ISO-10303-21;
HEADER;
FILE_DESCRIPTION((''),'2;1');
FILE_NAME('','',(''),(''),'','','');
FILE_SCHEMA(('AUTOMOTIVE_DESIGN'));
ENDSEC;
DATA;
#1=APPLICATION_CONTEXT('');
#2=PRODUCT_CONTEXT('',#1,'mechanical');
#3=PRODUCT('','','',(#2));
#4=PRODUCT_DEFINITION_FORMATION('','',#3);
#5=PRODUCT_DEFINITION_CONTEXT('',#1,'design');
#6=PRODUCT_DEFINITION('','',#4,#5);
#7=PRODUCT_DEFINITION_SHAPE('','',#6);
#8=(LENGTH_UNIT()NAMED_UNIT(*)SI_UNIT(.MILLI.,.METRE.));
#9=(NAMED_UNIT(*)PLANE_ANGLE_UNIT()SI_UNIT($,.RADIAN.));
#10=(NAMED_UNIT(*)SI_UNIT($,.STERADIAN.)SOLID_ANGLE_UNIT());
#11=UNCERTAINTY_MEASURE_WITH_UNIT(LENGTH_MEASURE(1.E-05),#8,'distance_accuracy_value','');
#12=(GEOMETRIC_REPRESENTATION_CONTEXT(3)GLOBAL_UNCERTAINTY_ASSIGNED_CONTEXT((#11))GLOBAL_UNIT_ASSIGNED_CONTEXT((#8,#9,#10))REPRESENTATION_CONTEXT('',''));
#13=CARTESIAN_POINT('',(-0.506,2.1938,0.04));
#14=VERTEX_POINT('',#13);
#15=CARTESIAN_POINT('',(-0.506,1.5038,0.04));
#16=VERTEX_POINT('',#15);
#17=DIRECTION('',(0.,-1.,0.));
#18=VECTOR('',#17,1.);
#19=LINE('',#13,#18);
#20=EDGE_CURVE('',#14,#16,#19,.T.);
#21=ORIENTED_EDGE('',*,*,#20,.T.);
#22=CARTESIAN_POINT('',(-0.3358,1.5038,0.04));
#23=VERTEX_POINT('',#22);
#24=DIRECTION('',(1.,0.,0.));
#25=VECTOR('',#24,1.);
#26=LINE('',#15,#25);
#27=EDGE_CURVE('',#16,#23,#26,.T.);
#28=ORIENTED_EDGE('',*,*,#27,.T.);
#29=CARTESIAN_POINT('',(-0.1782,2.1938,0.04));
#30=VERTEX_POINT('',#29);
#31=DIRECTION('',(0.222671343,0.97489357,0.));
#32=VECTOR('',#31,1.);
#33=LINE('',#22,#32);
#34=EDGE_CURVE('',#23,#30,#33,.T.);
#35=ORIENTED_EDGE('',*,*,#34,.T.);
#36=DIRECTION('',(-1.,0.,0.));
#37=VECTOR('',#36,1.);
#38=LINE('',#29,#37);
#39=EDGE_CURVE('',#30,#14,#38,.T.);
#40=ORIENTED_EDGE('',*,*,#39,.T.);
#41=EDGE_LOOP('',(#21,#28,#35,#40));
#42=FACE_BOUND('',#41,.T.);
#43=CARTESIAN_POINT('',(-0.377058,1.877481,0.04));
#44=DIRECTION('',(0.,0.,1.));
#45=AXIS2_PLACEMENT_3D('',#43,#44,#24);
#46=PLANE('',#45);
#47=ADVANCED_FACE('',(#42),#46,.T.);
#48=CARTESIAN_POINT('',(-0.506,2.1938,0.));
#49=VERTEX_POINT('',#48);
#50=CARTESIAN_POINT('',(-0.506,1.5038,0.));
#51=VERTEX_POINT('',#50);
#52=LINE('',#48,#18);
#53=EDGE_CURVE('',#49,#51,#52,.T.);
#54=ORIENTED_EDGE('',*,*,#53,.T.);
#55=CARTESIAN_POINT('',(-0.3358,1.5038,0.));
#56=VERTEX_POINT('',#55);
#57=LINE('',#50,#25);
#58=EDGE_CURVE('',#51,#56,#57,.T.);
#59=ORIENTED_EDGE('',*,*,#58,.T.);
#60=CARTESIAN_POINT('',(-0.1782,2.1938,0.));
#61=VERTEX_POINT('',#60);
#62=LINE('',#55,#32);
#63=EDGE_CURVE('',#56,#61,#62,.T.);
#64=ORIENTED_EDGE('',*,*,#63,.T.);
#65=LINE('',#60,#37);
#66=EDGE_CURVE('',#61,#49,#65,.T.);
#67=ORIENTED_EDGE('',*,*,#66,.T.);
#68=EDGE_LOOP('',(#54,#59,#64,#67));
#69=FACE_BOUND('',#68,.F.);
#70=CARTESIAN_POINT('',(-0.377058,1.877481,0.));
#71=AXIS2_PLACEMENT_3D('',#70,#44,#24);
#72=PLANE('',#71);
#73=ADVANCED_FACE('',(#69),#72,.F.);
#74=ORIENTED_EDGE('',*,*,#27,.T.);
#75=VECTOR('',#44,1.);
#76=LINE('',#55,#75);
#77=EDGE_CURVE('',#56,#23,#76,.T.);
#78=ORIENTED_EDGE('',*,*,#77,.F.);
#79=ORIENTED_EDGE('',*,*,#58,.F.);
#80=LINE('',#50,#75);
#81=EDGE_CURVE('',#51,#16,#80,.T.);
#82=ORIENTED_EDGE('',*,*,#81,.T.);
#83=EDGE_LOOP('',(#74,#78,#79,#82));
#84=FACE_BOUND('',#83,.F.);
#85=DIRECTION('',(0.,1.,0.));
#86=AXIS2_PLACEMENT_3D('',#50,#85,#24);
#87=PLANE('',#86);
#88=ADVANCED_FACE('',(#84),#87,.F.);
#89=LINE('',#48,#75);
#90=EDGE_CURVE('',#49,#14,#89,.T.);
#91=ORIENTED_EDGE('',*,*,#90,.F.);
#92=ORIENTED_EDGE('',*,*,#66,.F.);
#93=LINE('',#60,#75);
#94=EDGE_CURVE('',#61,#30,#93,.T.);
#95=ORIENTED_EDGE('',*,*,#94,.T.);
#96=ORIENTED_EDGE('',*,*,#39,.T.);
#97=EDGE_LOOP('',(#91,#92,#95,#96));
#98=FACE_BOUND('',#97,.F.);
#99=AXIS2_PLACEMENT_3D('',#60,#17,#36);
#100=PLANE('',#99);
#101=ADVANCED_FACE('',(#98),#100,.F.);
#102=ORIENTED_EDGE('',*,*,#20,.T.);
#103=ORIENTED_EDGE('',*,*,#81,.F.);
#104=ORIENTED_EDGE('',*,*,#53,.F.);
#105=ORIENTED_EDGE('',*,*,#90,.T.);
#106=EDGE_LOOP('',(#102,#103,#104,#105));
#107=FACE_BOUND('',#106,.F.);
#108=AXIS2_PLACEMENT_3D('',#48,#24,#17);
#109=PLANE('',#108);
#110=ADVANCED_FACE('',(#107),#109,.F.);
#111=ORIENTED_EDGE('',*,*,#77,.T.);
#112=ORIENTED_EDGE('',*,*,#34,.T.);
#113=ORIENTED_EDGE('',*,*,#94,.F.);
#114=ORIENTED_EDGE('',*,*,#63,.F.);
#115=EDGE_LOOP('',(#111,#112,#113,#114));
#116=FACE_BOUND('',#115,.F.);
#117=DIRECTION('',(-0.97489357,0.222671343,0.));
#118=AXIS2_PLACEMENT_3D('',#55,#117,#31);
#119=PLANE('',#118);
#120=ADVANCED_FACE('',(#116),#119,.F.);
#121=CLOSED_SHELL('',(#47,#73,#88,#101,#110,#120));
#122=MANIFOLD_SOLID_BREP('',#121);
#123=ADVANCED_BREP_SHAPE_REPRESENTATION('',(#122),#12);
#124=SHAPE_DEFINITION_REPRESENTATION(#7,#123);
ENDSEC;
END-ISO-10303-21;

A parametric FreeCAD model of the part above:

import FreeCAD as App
import Part
import Sketcher
from FreeCAD import Vector

doc = App.newDocument("Part")
params = doc.addObject("Spreadsheet::Sheet", "Params")
for row, (alias, value) in enumerate([
    ("sketch1_height", "0.69 mm"),
    ("pad1_length", "0.04 mm"),
], start=1):
    params.set(f"A{row}", alias)
    params.set(f"B{row}", "=" + value)
    params.setAlias(f"B{row}", alias)

body = doc.addObject("PartDesign::Body", "Body")

# Sketch on XY plane
sketch1 = body.newObject("Sketcher::SketchObject", "Sketch")
sketch1.AttachmentSupport = (doc.getObject("XY_Plane"), [""])
sketch1.MapMode = "FlatFace"
sketch1.addGeometry([
    Part.LineSegment(Vector(-0.51, 1.5, 0), Vector(-0.34, 1.5, 0)),
    Part.LineSegment(Vector(-0.34, 1.5, 0), Vector(-0.18, 2.19, 0)),
    Part.LineSegment(Vector(-0.18, 2.19, 0), Vector(-0.51, 2.19, 0)),
    Part.LineSegment(Vector(-0.51, 2.19, 0), Vector(-0.51, 1.5, 0)),
], False)
sketch1.addConstraint([
    Sketcher.Constraint("Coincident", 0, 2, 1, 1),
    Sketcher.Constraint("Coincident", 1, 2, 2, 1),
    Sketcher.Constraint("Coincident", 2, 2, 3, 1),
    Sketcher.Constraint("Coincident", 3, 2, 0, 1),
    Sketcher.Constraint("Horizontal", 0),
    Sketcher.Constraint("Horizontal", 2),
    Sketcher.Constraint("Vertical", 3),
    Sketcher.Constraint("DistanceY", 3, 2, 3, 1, 0.69),
    Sketcher.Constraint("DistanceX", 0, 1, 0, 2, 0.1702),
    Sketcher.Constraint("DistanceX", 2, 2, 2, 1, 0.3278),
    Sketcher.Constraint("DistanceX", 2, 2, -1, 1, 0.506),
    Sketcher.Constraint("DistanceY", -1, 1, 0, 2, 1.5038),
])
sketch1.setExpression("Constraints[7]", "Params.sketch1_height")
pad1 = body.newObject("PartDesign::Pad", "Pad")
pad1.Profile = sketch1
pad1.setExpression("Length", "Params.pad1_length")

doc.recompute()
